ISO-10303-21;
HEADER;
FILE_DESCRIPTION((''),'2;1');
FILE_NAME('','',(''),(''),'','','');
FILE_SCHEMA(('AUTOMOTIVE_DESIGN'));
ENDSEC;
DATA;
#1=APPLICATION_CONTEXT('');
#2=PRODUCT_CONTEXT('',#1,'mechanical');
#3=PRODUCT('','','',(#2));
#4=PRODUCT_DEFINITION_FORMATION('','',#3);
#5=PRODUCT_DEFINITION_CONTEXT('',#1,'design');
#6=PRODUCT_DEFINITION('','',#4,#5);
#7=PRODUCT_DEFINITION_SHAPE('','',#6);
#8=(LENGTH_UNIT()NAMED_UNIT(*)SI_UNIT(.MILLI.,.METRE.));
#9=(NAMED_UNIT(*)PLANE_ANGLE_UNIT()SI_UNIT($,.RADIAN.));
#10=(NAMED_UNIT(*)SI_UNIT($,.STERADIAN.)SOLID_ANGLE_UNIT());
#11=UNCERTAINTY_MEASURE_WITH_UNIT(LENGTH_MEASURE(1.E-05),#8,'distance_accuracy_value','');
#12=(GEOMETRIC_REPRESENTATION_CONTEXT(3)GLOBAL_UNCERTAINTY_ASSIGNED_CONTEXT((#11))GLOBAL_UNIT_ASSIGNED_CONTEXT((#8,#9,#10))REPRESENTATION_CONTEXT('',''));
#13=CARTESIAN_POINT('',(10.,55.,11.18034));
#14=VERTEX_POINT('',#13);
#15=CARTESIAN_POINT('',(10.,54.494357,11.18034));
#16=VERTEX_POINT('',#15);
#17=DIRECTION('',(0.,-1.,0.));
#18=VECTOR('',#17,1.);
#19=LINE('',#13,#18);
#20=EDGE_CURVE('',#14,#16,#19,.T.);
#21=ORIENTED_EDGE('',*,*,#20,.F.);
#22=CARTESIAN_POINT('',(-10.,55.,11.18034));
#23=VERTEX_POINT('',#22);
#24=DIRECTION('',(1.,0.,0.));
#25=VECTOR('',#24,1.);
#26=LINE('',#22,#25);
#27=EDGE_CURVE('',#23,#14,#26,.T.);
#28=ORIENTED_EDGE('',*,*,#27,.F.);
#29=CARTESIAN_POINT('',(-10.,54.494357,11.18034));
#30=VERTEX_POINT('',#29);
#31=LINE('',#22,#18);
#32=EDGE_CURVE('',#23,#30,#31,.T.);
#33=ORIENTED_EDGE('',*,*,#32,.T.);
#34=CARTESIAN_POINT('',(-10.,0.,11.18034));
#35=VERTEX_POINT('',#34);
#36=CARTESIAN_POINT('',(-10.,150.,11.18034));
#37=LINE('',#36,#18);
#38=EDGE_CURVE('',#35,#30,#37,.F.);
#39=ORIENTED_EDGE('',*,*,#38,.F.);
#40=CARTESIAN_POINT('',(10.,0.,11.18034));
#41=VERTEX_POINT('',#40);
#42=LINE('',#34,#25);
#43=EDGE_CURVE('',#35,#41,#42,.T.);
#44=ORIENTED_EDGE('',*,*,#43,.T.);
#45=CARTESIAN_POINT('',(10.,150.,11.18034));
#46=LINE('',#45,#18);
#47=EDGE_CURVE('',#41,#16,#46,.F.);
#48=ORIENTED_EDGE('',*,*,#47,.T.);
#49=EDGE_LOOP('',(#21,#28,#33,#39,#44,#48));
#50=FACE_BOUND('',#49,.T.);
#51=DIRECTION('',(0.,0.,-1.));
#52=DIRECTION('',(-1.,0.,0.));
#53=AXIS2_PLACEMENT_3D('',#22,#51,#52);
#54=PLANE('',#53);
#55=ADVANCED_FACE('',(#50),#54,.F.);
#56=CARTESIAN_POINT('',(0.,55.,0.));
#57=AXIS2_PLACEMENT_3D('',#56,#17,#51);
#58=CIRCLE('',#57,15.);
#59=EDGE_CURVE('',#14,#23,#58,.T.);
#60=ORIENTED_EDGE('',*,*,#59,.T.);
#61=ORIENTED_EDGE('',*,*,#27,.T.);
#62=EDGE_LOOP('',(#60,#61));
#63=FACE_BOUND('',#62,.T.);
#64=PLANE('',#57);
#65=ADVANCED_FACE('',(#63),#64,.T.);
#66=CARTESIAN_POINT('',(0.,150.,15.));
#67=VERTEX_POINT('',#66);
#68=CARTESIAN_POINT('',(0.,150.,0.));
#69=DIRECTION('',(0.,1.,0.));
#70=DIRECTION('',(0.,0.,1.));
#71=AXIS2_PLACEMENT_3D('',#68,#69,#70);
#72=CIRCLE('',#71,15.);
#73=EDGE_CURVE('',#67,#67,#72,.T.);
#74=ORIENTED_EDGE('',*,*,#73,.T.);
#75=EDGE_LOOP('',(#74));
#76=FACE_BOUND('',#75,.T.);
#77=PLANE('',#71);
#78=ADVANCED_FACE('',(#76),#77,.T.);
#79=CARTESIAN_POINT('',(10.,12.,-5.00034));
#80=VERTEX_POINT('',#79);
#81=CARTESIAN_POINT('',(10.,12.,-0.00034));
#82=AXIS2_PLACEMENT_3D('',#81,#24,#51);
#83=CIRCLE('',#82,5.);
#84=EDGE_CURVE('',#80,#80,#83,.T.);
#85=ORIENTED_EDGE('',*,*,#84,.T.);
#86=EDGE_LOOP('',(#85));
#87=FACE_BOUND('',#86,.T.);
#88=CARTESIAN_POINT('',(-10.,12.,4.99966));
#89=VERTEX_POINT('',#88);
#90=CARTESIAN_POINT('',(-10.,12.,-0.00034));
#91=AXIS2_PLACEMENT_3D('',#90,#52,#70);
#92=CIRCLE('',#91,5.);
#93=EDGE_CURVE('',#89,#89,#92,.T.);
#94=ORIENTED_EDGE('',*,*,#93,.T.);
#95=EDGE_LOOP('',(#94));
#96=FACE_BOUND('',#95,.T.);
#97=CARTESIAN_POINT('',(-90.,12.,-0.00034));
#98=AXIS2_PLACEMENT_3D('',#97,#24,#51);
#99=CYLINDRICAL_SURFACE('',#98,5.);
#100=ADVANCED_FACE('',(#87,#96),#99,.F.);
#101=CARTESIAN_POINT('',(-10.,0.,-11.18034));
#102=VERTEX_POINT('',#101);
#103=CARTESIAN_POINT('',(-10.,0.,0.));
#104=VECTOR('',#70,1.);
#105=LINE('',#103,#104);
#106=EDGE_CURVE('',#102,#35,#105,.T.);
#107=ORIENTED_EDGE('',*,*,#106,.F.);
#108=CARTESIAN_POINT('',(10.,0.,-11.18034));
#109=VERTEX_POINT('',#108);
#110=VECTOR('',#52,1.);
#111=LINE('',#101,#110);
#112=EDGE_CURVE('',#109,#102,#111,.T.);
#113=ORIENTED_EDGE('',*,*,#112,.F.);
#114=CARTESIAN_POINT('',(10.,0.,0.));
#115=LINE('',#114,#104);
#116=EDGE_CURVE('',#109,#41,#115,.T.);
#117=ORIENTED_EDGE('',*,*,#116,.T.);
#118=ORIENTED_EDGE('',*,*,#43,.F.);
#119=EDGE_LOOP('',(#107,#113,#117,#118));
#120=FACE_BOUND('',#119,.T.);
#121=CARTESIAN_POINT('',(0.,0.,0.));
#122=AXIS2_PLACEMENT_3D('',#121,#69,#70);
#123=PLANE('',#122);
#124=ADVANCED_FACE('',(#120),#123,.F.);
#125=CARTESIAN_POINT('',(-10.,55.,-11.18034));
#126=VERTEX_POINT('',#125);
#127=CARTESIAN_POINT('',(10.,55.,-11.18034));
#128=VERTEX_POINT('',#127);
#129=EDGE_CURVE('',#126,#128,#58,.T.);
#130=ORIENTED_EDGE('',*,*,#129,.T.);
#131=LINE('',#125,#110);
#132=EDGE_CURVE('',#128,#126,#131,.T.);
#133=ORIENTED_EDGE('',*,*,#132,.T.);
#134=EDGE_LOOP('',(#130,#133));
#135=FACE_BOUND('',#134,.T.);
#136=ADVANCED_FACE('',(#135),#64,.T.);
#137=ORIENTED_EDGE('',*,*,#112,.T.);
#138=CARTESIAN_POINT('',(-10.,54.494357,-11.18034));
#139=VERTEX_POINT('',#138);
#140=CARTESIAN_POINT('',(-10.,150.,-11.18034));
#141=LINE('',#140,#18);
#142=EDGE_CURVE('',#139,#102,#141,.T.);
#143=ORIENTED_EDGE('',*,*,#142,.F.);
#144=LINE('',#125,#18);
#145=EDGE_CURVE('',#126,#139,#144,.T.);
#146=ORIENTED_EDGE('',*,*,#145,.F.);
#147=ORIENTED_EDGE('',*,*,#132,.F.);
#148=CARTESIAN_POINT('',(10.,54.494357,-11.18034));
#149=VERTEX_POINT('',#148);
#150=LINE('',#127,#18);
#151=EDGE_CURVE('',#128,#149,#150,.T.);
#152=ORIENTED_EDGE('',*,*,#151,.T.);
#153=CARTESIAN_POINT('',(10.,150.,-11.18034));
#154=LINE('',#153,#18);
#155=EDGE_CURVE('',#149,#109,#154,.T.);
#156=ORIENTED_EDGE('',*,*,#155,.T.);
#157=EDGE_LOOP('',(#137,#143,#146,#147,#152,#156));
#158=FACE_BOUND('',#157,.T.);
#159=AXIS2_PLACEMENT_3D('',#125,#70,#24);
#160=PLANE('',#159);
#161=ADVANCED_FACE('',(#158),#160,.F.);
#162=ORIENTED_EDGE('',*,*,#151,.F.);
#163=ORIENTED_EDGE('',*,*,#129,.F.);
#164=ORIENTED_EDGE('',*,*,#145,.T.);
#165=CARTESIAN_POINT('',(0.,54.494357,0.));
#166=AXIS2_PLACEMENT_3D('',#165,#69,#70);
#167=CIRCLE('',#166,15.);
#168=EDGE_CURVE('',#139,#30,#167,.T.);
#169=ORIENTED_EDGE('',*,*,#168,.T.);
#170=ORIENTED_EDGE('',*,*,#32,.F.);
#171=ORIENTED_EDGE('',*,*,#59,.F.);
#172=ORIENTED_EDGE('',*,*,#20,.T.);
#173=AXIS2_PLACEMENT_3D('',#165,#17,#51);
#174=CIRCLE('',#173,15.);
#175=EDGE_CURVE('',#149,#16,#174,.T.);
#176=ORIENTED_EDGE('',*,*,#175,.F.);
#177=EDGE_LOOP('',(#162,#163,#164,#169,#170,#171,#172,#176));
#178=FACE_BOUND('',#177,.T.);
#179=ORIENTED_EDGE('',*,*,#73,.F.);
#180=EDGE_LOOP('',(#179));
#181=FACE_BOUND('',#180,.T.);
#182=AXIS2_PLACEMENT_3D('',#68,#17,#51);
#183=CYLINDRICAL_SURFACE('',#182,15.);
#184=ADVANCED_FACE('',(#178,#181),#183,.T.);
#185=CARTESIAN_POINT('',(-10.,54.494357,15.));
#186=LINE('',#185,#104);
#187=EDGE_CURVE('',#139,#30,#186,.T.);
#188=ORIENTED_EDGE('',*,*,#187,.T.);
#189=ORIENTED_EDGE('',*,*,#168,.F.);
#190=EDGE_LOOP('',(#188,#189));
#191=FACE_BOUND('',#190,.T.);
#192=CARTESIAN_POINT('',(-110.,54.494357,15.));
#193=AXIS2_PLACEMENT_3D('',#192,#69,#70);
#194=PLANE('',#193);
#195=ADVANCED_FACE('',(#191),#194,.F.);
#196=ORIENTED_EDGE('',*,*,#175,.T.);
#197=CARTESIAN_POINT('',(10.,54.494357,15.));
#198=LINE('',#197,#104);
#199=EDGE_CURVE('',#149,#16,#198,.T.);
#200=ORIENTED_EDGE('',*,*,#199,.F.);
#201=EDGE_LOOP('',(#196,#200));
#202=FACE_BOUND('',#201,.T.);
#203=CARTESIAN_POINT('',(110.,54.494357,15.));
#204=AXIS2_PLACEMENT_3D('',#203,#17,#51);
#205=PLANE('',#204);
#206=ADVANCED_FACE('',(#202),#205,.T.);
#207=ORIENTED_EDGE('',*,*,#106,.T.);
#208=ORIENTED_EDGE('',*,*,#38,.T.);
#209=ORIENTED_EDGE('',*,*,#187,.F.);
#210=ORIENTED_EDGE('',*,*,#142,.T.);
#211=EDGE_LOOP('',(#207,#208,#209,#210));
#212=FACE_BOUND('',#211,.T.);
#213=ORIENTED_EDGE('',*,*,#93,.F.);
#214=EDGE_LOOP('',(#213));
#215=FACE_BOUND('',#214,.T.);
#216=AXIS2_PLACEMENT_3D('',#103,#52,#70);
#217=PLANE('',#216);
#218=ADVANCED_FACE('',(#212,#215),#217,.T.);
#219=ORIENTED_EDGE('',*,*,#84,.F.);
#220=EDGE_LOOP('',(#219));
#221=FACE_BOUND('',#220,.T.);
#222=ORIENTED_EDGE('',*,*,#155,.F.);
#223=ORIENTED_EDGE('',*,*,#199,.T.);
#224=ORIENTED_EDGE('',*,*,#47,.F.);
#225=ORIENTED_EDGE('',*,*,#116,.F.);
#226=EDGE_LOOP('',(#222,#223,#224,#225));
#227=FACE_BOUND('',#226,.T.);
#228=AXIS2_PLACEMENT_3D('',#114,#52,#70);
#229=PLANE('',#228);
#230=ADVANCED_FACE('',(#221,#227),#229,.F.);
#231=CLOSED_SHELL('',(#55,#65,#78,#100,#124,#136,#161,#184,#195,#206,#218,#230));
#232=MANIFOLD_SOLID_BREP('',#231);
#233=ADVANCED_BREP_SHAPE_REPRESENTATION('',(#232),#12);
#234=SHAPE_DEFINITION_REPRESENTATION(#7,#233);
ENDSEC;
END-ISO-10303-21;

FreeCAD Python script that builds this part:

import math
import FreeCAD as App
import Part
import Sketcher

V = App.Vector

doc = App.newDocument("Part")
body = doc.addObject("PartDesign::Body", "Body")

# Sketch on XZ plane
sketch1 = body.newObject("Sketcher::SketchObject", "Sketch")
sketch1.AttachmentSupport = (doc.getObject("XZ_Plane"), [""])
sketch1.MapMode = "FlatFace"
sketch1.addGeometry(Part.Circle(V(0, 0, 0), V(0, 0, 1), 15), False)
sketch1.addConstraint([
    Sketcher.Constraint("Coincident", 0, 3, -1, 1),
    Sketcher.Constraint("Diameter", 0, 30.0),
])
pad1 = body.newObject("PartDesign::Pad", "Pad")
pad1.Profile = sketch1
pad1.Length = 150
pad1.Reversed = True

# Sketch on YZ plane
sketch2 = body.newObject("Sketcher::SketchObject", "Sketch001")
sketch2.AttachmentSupport = (doc.getObject("YZ_Plane"), [""])
sketch2.MapMode = "FlatFace"
sketch2.AttachmentOffset = App.Placement(V(0, 0, 10), App.Rotation())
sketch2.addGeometry([
    Part.LineSegment(V(54.494357, 15, 0), V(-54.494357, 15, 0)),
    Part.LineSegment(V(-54.494357, 15, 0), V(-54.494357, -15, 0)),
    Part.LineSegment(V(-54.494357, -15, 0), V(54.494357, -15, 0)),
    Part.LineSegment(V(54.494357, -15, 0), V(54.494357, 15, 0)),
], False)
sketch2.addConstraint([
    Sketcher.Constraint("Coincident", 0, 2, 1, 1),
    Sketcher.Constraint("Coincident", 1, 2, 2, 1),
    Sketcher.Constraint("Coincident", 2, 2, 3, 1),
    Sketcher.Constraint("Coincident", 3, 2, 0, 1),
    Sketcher.Constraint("Horizontal", 0),
    Sketcher.Constraint("Vertical", 1),
    Sketcher.Constraint("Horizontal", 2),
    Sketcher.Constraint("Vertical", 3),
    Sketcher.Constraint("Symmetric", 0, 2, 2, 2, -1, 1),
    Sketcher.Constraint("DistanceY", 1, 2, 1, 1, 30.0),
    Sketcher.Constraint("DistanceX", 0, 2, 0, 1, 108.988714),
])
pocket1 = body.newObject("PartDesign::Pocket", "Pocket")
pocket1.Profile = sketch2
pocket1.Length = 100
pocket1.Reversed = True

# Sketch on YZ plane
sketch3 = body.newObject("Sketcher::SketchObject", "Sketch002")
sketch3.AttachmentSupport = (doc.getObject("YZ_Plane"), [""])
sketch3.MapMode = "FlatFace"
sketch3.AttachmentOffset = App.Placement(V(0, 0, -10), App.Rotation())
sketch3.addGeometry([
    Part.LineSegment(V(54.494357, 15, 0), V(-54.494357, 15, 0)),
    Part.LineSegment(V(-54.494357, 15, 0), V(-54.494357, -15, 0)),
    Part.LineSegment(V(-54.494357, -15, 0), V(54.494357, -15, 0)),
    Part.LineSegment(V(54.494357, -15, 0), V(54.494357, 15, 0)),
], False)
sketch3.addConstraint([
    Sketcher.Constraint("Coincident", 0, 2, 1, 1),
    Sketcher.Constraint("Coincident", 1, 2, 2, 1),
    Sketcher.Constraint("Coincident", 2, 2, 3, 1),
    Sketcher.Constraint("Coincident", 3, 2, 0, 1),
    Sketcher.Constraint("Horizontal", 0),
    Sketcher.Constraint("Vertical", 1),
    Sketcher.Constraint("Horizontal", 2),
    Sketcher.Constraint("Vertical", 3),
    Sketcher.Constraint("Symmetric", 0, 2, 2, 2, -1, 1),
    Sketcher.Constraint("DistanceY", 1, 2, 1, 1, 30.0),
    Sketcher.Constraint("DistanceX", 0, 2, 0, 1, 108.988714),
])
pocket2 = body.newObject("PartDesign::Pocket", "Pocket001")
pocket2.Profile = sketch3
pocket2.Length = 100

# Sketch on YZ plane
sketch4 = body.newObject("Sketcher::SketchObject", "Sketch003")
sketch4.AttachmentSupport = (doc.getObject("YZ_Plane"), [""])
sketch4.MapMode = "FlatFace"
sketch4.AttachmentOffset = App.Placement(V(0, 0, 10), App.Rotation())
sketch4.addGeometry(Part.Circle(V(12, -0.00034, 0), V(0, 0, 1), 5), False)
sketch4.addConstraint([
    Sketcher.Constraint("Diameter", 0, 10.0),
    Sketcher.Constraint("DistanceX", -1, 1, 0, 3, 12.0),
    Sketcher.Constraint("DistanceY", 0, 3, -1, 1, 0.00034),
])
pocket3 = body.newObject("PartDesign::Pocket", "Pocket002")
pocket3.Profile = sketch4
pocket3.Length = 100

# Sketch on XZ plane
sketch5 = body.newObject("Sketcher::SketchObject", "Sketch004")
sketch5.AttachmentSupport = (doc.getObject("XZ_Plane"), [""])
sketch5.MapMode = "FlatFace"
sketch5.addGeometry([
    Part.LineSegment(V(-10, 11.18034, 0), V(10, 11.18034, 0)),
    Part.ArcOfCircle(Part.Circle(V(0, 0, 0), V(0, 0, 1), 15), math.radians(48.189685), math.radians(131.810315)),
    Part.LineSegment(V(10, -11.18034, 0), V(-10, -11.18034, 0)),
    Part.ArcOfCircle(Part.Circle(V(0, 0, 0), V(0, 0, 1), 15), math.radians(-131.810315), math.radians(-48.189685)),
], False)
sketch5.addConstraint([
    Sketcher.Constraint("Coincident", 0, 1, 1, 2),
    Sketcher.Constraint("Coincident", 1, 1, 0, 2),
    Sketcher.Constraint("Coincident", 2, 1, 3, 2),
    Sketcher.Constraint("Coincident", 3, 1, 2, 2),
    Sketcher.Constraint("Horizontal", 0),
    Sketcher.Constraint("Horizontal", 2),
    Sketcher.Constraint("Coincident", 1, 3, -1, 1),
    Sketcher.Constraint("Coincident", 3, 3, -1, 1),
    Sketcher.Constraint("Equal", 1, 3),
    Sketcher.Constraint("Vertical", 1, 1, 2, 1),
    Sketcher.Constraint("Radius", 1, 15.0),
    Sketcher.Constraint("DistanceX", 0, 1, 0, 2, 20.0),
])
pocket4 = body.newObject("PartDesign::Pocket", "Pocket003")
pocket4.Profile = sketch5
pocket4.Length = 55

doc.recompute()
